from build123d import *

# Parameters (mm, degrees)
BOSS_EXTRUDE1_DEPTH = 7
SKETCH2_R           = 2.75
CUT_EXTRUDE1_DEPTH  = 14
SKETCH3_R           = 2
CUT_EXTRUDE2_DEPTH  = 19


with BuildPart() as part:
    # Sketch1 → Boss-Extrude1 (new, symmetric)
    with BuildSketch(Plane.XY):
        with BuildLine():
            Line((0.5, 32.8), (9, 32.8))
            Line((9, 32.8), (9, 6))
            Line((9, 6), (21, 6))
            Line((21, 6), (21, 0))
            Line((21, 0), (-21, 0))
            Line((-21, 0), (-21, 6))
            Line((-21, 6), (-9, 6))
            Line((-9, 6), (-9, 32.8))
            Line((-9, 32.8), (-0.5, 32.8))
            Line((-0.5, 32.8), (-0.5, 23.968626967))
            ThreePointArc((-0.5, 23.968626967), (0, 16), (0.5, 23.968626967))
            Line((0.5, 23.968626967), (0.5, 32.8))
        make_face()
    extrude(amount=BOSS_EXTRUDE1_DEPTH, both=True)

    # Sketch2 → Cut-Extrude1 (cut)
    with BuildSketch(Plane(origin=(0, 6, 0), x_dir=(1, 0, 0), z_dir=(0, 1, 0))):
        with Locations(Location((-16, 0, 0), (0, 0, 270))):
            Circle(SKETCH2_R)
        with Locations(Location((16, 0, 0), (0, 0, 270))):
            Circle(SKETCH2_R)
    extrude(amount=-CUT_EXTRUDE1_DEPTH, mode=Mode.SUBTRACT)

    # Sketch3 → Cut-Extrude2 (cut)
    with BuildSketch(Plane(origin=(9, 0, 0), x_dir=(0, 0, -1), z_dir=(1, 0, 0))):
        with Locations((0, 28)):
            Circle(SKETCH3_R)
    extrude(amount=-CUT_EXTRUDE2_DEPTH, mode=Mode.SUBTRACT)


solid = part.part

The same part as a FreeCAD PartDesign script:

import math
import FreeCAD as App
import Part
import Sketcher
from FreeCAD import Vector
Q = App.Units.Quantity

doc = App.newDocument("Part")
body = doc.addObject("PartDesign::Body", "Body")

# Sketch on XY plane
sketch1 = body.newObject("Sketcher::SketchObject", "Sketch")
sketch1.AttachmentSupport = (doc.getObject("XY_Plane"), [""])
sketch1.MapMode = "FlatFace"
sketch1.addGeometry(Part.LineSegment(Vector(9, 32.8, 0), Vector(0.5, 32.8, 0)), False)
sketch1.addGeometry(Part.LineSegment(Vector(0.5, 32.8, 0), Vector(0.5, 24, 0)), False)
sketch1.addGeometry(Part.ArcOfCircle(Part.Circle(Vector(0, 20, 0), Vector(0, 0, 1), 4), math.radians(97), math.radians(443)), False)
sketch1.addGeometry(Part.LineSegment(Vector(-0.5, 24, 0), Vector(-0.5, 32.8, 0)), False)
sketch1.addGeometry(Part.LineSegment(Vector(-0.5, 32.8, 0), Vector(-9, 32.8, 0)), False)
sketch1.addGeometry(Part.LineSegment(Vector(-9, 32.8, 0), Vector(-9, 6, 0)), False)
sketch1.addGeometry(Part.LineSegment(Vector(-9, 6, 0), Vector(-21, 6, 0)), False)
sketch1.addGeometry(Part.LineSegment(Vector(-21, 6, 0), Vector(-21, 0, 0)), False)
sketch1.addGeometry(Part.LineSegment(Vector(-21, 0, 0), Vector(21, 0, 0)), False)
sketch1.addGeometry(Part.LineSegment(Vector(21, 0, 0), Vector(21, 6, 0)), False)
sketch1.addGeometry(Part.LineSegment(Vector(21, 6, 0), Vector(9, 6, 0)), False)
sketch1.addGeometry(Part.LineSegment(Vector(9, 6, 0), Vector(9, 32.8, 0)), False)
sketch1.addConstraint(Sketcher.Constraint("Coincident", 0, 2, 1, 1))
sketch1.addConstraint(Sketcher.Constraint("Coincident", 1, 2, 2, 2))
sketch1.addConstraint(Sketcher.Constraint("Coincident", 2, 1, 3, 1))
sketch1.addConstraint(Sketcher.Constraint("Coincident", 3, 2, 4, 1))
sketch1.addConstraint(Sketcher.Constraint("Coincident", 4, 2, 5, 1))
sketch1.addConstraint(Sketcher.Constraint("Coincident", 5, 2, 6, 1))
sketch1.addConstraint(Sketcher.Constraint("Coincident", 6, 2, 7, 1))
sketch1.addConstraint(Sketcher.Constraint("Coincident", 7, 2, 8, 1))
sketch1.addConstraint(Sketcher.Constraint("Coincident", 8, 2, 9, 1))
sketch1.addConstraint(Sketcher.Constraint("Coincident", 9, 2, 10, 1))
sketch1.addConstraint(Sketcher.Constraint("Coincident", 10, 2, 11, 1))
sketch1.addConstraint(Sketcher.Constraint("Coincident", 11, 2, 0, 1))
sketch1.addConstraint(Sketcher.Constraint("Horizontal", 0))
sketch1.addConstraint(Sketcher.Constraint("Vertical", 1))
sketch1.addConstraint(Sketcher.Constraint("Vertical", 3))
sketch1.addConstraint(Sketcher.Constraint("Horizontal", 4))
sketch1.addConstraint(Sketcher.Constraint("Vertical", 5))
sketch1.addConstraint(Sketcher.Constraint("Horizontal", 6))
sketch1.addConstraint(Sketcher.Constraint("Vertical", 7))
sketch1.addConstraint(Sketcher.Constraint("Horizontal", 8))
sketch1.addConstraint(Sketcher.Constraint("Vertical", 9))
sketch1.addConstraint(Sketcher.Constraint("Horizontal", 10))
sketch1.addConstraint(Sketcher.Constraint("Vertical", 11))
sketch1.addConstraint(Sketcher.Constraint("Symmetric", 7, 2, 8, 2, -1, 1))
sketch1.addConstraint(Sketcher.Constraint("Symmetric", 1, 2, 2, 1, -2))
sketch1.addConstraint(Sketcher.Constraint("Symmetric", 5, 2, 10, 2, -2))
sketch1.addConstraint(Sketcher.Constraint("Horizontal", 0, 2, 3, 2))
sketch1.addConstraint(Sketcher.Constraint("Radius", 2, Q("4 mm")))
sketch1.addConstraint(Sketcher.Constraint("DistanceX", 6, 2, 6, 1, Q("12 mm")))
sketch1.addConstraint(Sketcher.Constraint("DistanceX", 8, 1, 8, 2, Q("42 mm")))
sketch1.addConstraint(Sketcher.Constraint("DistanceY", 7, 2, 7, 1, Q("6 mm")))
sketch1.addConstraint(Sketcher.Constraint("DistanceX", 0, 2, 0, 1, Q("8.5 mm")))
sketch1.addConstraint(Sketcher.Constraint("DistanceY", 5, 2, 5, 1, Q("26.8 mm")))
sketch1.addConstraint(Sketcher.Constraint("DistanceY", -1, 1, 2, 3, Q("20 mm")))
pad1 = body.newObject("PartDesign::Pad", "Pad")
pad1.Profile = sketch1
pad1.Length = 14
pad1.Midplane = True

# Sketch on XZ plane
sketch2 = body.newObject("Sketcher::SketchObject", "Sketch001")
sketch2.AttachmentSupport = (doc.getObject("XZ_Plane"), [""])
sketch2.MapMode = "FlatFace"
sketch2.AttachmentOffset = App.Placement(Vector(0, 0, -6), App.Rotation())
sketch2.addGeometry(Part.Circle(Vector(-16, 0, 0), Vector(0, 0, 1), 2.8), False)
sketch2.addGeometry(Part.Circle(Vector(16, 0, 0), Vector(0, 0, 1), 2.8), False)
sketch2.addConstraint(Sketcher.Constraint("Equal", 0, 1))
sketch2.addConstraint(Sketcher.Constraint("Symmetric", 0, 3, 1, 3, -1, 1))
sketch2.addConstraint(Sketcher.Constraint("PointOnObject", 0, 3, -1))
sketch2.addConstraint(Sketcher.Constraint("Diameter", 0, Q("5.5 mm")))
sketch2.addConstraint(Sketcher.Constraint("DistanceX", 0, 3, -1, 1, Q("16 mm")))
pocket1 = body.newObject("PartDesign::Pocket", "Pocket")
pocket1.Profile = sketch2
pocket1.Length = 14
pocket1.Reversed = True

# Sketch on YZ plane
sketch3 = body.newObject("Sketcher::SketchObject", "Sketch002")
sketch3.AttachmentSupport = (doc.getObject("YZ_Plane"), [""])
sketch3.MapMode = "FlatFace"
sketch3.AttachmentOffset = App.Placement(Vector(0, 0, 9), App.Rotation())
sketch3.addGeometry(Part.Circle(Vector(28, 0, 0), Vector(0, 0, 1), 2), False)
sketch3.addConstraint(Sketcher.Constraint("PointOnObject", 0, 3, -1))
sketch3.addConstraint(Sketcher.Constraint("Diameter", 0, Q("4 mm")))
sketch3.addConstraint(Sketcher.Constraint("DistanceX", -1, 1, 0, 3, Q("28 mm")))
pocket2 = body.newObject("PartDesign::Pocket", "Pocket001")
pocket2.Profile = sketch3
pocket2.Length = 19

doc.recompute()
